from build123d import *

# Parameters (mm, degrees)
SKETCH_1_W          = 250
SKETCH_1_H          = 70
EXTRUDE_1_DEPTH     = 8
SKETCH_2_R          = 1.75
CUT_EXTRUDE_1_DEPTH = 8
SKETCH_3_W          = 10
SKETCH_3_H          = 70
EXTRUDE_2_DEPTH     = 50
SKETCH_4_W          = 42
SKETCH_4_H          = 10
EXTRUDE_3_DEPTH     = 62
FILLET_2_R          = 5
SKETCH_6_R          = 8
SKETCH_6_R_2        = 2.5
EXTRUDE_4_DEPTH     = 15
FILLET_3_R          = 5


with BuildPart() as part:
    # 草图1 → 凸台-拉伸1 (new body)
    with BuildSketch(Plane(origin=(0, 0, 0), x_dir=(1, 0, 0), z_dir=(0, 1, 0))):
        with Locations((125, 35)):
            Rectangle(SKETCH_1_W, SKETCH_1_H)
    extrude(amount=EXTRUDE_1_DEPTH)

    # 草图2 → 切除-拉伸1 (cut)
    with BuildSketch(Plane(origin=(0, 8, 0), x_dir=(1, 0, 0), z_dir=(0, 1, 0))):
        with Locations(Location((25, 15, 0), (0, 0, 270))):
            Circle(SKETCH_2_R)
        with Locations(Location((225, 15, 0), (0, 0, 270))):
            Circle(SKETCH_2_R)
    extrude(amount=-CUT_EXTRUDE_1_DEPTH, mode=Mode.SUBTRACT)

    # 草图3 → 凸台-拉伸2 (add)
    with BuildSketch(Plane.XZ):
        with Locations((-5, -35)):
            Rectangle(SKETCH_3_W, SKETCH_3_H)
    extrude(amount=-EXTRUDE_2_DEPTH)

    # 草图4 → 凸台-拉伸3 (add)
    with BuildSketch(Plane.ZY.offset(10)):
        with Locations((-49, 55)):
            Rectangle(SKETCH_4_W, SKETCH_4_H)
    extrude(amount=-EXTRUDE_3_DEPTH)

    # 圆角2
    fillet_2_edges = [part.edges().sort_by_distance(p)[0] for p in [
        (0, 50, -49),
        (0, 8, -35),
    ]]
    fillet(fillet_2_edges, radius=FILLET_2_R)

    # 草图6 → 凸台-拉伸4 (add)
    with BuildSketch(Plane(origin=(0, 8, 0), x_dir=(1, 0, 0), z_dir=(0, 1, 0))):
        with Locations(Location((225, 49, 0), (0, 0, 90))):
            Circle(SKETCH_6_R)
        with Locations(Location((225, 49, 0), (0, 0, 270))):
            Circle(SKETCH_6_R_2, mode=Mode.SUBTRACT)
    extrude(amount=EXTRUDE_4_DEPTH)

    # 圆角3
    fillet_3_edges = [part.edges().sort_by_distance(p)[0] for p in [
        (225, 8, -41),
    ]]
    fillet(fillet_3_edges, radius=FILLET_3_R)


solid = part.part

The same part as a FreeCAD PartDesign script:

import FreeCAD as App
import Part
import Sketcher
from FreeCAD import Vector


def edges_at(feature, points):
    """Names of the edges that pass closest to the given points."""
    edges = feature.Shape.Edges
    near = lambda p: min(range(len(edges)), key=lambda i: edges[i].distToShape(Part.Vertex(*p))[0])
    return sorted({f"Edge{near(p) + 1}" for p in points})

doc = App.newDocument("Part")
body = doc.addObject("PartDesign::Body", "Body")

sketch1 = body.newObject("Sketcher::SketchObject", "Sketch")
sketch1.AttachmentSupport = (doc.getObject("XZ_Plane"), [""])
sketch1.MapMode = "FlatFace"
sketch1.addGeometry(Part.LineSegment(Vector(0, -70, 0), Vector(0, 0, 0)), False)
sketch1.addGeometry(Part.LineSegment(Vector(0, 0, 0), Vector(250, 0, 0)), False)
sketch1.addGeometry(Part.LineSegment(Vector(250, 0, 0), Vector(250, -70, 0)), False)
sketch1.addGeometry(Part.LineSegment(Vector(250, -70, 0), Vector(0, -70, 0)), False)
sketch1.addConstraint(Sketcher.Constraint("Coincident", 0, 2, 1, 1))
sketch1.addConstraint(Sketcher.Constraint("Coincident", 1, 2, 2, 1))
sketch1.addConstraint(Sketcher.Constraint("Coincident", 2, 2, 3, 1))
sketch1.addConstraint(Sketcher.Constraint("Coincident", 3, 2, 0, 1))
sketch1.addConstraint(Sketcher.Constraint("Vertical", 0))
sketch1.addConstraint(Sketcher.Constraint("Horizontal", 1))
sketch1.addConstraint(Sketcher.Constraint("Vertical", 2))
sketch1.addConstraint(Sketcher.Constraint("Horizontal", 3))
sketch1.addConstraint(Sketcher.Constraint("Coincident", 0, 2, -1, 1))
sketch1.addConstraint(Sketcher.Constraint("DistanceX", 1, 1, 1, 2, 250.0))
sketch1.addConstraint(Sketcher.Constraint("DistanceY", 0, 1, 0, 2, 70.0))
pad1 = body.newObject("PartDesign::Pad", "Pad")
pad1.Profile = sketch1
pad1.Length = 8
pad1.Reversed = True

sketch2 = body.newObject("Sketcher::SketchObject", "Sketch001")
sketch2.AttachmentSupport = (doc.getObject("XZ_Plane"), [""])
sketch2.MapMode = "FlatFace"
sketch2.AttachmentOffset = App.Placement(Vector(0, 0, -8), App.Rotation())
sketch2.addGeometry(Part.Circle(Vector(25, -15, 0), Vector(0, 0, 1), 1.8), False)
sketch2.addGeometry(Part.Circle(Vector(225, -15, 0), Vector(0, 0, 1), 1.8), False)
sketch2.addConstraint(Sketcher.Constraint("Equal", 0, 1))
sketch2.addConstraint(Sketcher.Constraint("Horizontal", 0, 3, 1, 3))
sketch2.addConstraint(Sketcher.Constraint("Diameter", 0, 3.5))
sketch2.addConstraint(Sketcher.Constraint("DistanceX", -1, 1, 0, 3, 25.0))
sketch2.addConstraint(Sketcher.Constraint("DistanceY", 0, 3, -1, 1, 15.0))
sketch2.addConstraint(Sketcher.Constraint("DistanceX", -1, 1, 1, 3, 225.0))
pocket1 = body.newObject("PartDesign::Pocket", "Pocket")
pocket1.Profile = sketch2
pocket1.Length = 8
pocket1.Reversed = True

sketch3 = body.newObject("Sketcher::SketchObject", "Sketch002")
sketch3.AttachmentSupport = (doc.getObject("XZ_Plane"), [""])
sketch3.MapMode = "FlatFace"
sketch3.addGeometry(Part.LineSegment(Vector(-10, 0, 0), Vector(-10, -70, 0)), False)
sketch3.addGeometry(Part.LineSegment(Vector(-10, -70, 0), Vector(0, -70, 0)), False)
sketch3.addGeometry(Part.LineSegment(Vector(0, -70, 0), Vector(0, 0, 0)), False)
sketch3.addGeometry(Part.LineSegment(Vector(0, 0, 0), Vector(-10, 0, 0)), False)
sketch3.addConstraint(Sketcher.Constraint("Coincident", 0, 2, 1, 1))
sketch3.addConstraint(Sketcher.Constraint("Coincident", 1, 2, 2, 1))
sketch3.addConstraint(Sketcher.Constraint("Coincident", 2, 2, 3, 1))
sketch3.addConstraint(Sketcher.Constraint("Coincident", 3, 2, 0, 1))
sketch3.addConstraint(Sketcher.Constraint("Vertical", 0))
sketch3.addConstraint(Sketcher.Constraint("Horizontal", 1))
sketch3.addConstraint(Sketcher.Constraint("Vertical", 2))
sketch3.addConstraint(Sketcher.Constraint("Horizontal", 3))
sketch3.addConstraint(Sketcher.Constraint("Coincident", 2, 2, -1, 1))
sketch3.addConstraint(Sketcher.Constraint("DistanceX", 1, 1, 1, 2, 10.0))
sketch3.addConstraint(Sketcher.Constraint("DistanceY", 0, 2, 0, 1, 70.0))
pad2 = body.newObject("PartDesign::Pad", "Pad001")
pad2.Profile = sketch3
pad2.Length = 50
pad2.Reversed = True

sketch4 = body.newObject("Sketcher::SketchObject", "Sketch003")
sketch4.AttachmentSupport = (doc.getObject("YZ_Plane"), [""])
sketch4.MapMode = "FlatFace"
sketch4.AttachmentOffset = App.Placement(Vector(0, 0, -10), App.Rotation())
sketch4.addGeometry(Part.LineSegment(Vector(60, -70, 0), Vector(50, -70, 0)), False)
sketch4.addGeometry(Part.LineSegment(Vector(50, -70, 0), Vector(50, -28, 0)), False)
sketch4.addGeometry(Part.LineSegment(Vector(50, -28, 0), Vector(60, -28, 0)), False)
sketch4.addGeometry(Part.LineSegment(Vector(60, -28, 0), Vector(60, -70, 0)), False)
sketch4.addConstraint(Sketcher.Constraint("Coincident", 0, 2, 1, 1))
sketch4.addConstraint(Sketcher.Constraint("Coincident", 1, 2, 2, 1))
sketch4.addConstraint(Sketcher.Constraint("Coincident", 2, 2, 3, 1))
sketch4.addConstraint(Sketcher.Constraint("Coincident", 3, 2, 0, 1))
sketch4.addConstraint(Sketcher.Constraint("Horizontal", 0))
sketch4.addConstraint(Sketcher.Constraint("Vertical", 1))
sketch4.addConstraint(Sketcher.Constraint("Horizontal", 2))
sketch4.addConstraint(Sketcher.Constraint("Vertical", 3))
sketch4.addConstraint(Sketcher.Constraint("DistanceX", 0, 2, 0, 1, 10.0))
sketch4.addConstraint(Sketcher.Constraint("DistanceY", 1, 1, 1, 2, 42.0))
sketch4.addConstraint(Sketcher.Constraint("DistanceX", -1, 1, 0, 2, 50.0))
sketch4.addConstraint(Sketcher.Constraint("DistanceY", 0, 2, -1, 1, 70.0))
pad3 = body.newObject("PartDesign::Pad", "Pad002")
pad3.Profile = sketch4
pad3.Length = 62
doc.recompute()

fillet = body.newObject("PartDesign::Fillet", "Fillet")
fillet.Base = (pad3, edges_at(pad3, [(0, 50, -49), (0, 8, -35)]))
fillet.Radius = 5

sketch5 = body.newObject("Sketcher::SketchObject", "Sketch004")
sketch5.AttachmentSupport = (doc.getObject("XZ_Plane"), [""])
sketch5.MapMode = "FlatFace"
sketch5.AttachmentOffset = App.Placement(Vector(0, 0, -8), App.Rotation())
sketch5.addGeometry(Part.Circle(Vector(225, -49, 0), Vector(0, 0, 1), 8), False)
sketch5.addGeometry(Part.Circle(Vector(225, -49, 0), Vector(0, 0, 1), 2.5), False)
sketch5.addConstraint(Sketcher.Constraint("Coincident", 1, 3, 0, 3))
sketch5.addConstraint(Sketcher.Constraint("Diameter", 0, 16.0))
sketch5.addConstraint(Sketcher.Constraint("Diameter", 1, 5.0))
sketch5.addConstraint(Sketcher.Constraint("DistanceX", -1, 1, 0, 3, 225.0))
sketch5.addConstraint(Sketcher.Constraint("DistanceY", 0, 3, -1, 1, 49.0))
pad4 = body.newObject("PartDesign::Pad", "Pad003")
pad4.Profile = sketch5
pad4.Length = 15
pad4.Reversed = True
doc.recompute()

fillet2 = body.newObject("PartDesign::Fillet", "Fillet001")
fillet2.Base = (pad4, edges_at(pad4, [(225, 8, -41)]))
fillet2.Radius = 5

doc.recompute()
